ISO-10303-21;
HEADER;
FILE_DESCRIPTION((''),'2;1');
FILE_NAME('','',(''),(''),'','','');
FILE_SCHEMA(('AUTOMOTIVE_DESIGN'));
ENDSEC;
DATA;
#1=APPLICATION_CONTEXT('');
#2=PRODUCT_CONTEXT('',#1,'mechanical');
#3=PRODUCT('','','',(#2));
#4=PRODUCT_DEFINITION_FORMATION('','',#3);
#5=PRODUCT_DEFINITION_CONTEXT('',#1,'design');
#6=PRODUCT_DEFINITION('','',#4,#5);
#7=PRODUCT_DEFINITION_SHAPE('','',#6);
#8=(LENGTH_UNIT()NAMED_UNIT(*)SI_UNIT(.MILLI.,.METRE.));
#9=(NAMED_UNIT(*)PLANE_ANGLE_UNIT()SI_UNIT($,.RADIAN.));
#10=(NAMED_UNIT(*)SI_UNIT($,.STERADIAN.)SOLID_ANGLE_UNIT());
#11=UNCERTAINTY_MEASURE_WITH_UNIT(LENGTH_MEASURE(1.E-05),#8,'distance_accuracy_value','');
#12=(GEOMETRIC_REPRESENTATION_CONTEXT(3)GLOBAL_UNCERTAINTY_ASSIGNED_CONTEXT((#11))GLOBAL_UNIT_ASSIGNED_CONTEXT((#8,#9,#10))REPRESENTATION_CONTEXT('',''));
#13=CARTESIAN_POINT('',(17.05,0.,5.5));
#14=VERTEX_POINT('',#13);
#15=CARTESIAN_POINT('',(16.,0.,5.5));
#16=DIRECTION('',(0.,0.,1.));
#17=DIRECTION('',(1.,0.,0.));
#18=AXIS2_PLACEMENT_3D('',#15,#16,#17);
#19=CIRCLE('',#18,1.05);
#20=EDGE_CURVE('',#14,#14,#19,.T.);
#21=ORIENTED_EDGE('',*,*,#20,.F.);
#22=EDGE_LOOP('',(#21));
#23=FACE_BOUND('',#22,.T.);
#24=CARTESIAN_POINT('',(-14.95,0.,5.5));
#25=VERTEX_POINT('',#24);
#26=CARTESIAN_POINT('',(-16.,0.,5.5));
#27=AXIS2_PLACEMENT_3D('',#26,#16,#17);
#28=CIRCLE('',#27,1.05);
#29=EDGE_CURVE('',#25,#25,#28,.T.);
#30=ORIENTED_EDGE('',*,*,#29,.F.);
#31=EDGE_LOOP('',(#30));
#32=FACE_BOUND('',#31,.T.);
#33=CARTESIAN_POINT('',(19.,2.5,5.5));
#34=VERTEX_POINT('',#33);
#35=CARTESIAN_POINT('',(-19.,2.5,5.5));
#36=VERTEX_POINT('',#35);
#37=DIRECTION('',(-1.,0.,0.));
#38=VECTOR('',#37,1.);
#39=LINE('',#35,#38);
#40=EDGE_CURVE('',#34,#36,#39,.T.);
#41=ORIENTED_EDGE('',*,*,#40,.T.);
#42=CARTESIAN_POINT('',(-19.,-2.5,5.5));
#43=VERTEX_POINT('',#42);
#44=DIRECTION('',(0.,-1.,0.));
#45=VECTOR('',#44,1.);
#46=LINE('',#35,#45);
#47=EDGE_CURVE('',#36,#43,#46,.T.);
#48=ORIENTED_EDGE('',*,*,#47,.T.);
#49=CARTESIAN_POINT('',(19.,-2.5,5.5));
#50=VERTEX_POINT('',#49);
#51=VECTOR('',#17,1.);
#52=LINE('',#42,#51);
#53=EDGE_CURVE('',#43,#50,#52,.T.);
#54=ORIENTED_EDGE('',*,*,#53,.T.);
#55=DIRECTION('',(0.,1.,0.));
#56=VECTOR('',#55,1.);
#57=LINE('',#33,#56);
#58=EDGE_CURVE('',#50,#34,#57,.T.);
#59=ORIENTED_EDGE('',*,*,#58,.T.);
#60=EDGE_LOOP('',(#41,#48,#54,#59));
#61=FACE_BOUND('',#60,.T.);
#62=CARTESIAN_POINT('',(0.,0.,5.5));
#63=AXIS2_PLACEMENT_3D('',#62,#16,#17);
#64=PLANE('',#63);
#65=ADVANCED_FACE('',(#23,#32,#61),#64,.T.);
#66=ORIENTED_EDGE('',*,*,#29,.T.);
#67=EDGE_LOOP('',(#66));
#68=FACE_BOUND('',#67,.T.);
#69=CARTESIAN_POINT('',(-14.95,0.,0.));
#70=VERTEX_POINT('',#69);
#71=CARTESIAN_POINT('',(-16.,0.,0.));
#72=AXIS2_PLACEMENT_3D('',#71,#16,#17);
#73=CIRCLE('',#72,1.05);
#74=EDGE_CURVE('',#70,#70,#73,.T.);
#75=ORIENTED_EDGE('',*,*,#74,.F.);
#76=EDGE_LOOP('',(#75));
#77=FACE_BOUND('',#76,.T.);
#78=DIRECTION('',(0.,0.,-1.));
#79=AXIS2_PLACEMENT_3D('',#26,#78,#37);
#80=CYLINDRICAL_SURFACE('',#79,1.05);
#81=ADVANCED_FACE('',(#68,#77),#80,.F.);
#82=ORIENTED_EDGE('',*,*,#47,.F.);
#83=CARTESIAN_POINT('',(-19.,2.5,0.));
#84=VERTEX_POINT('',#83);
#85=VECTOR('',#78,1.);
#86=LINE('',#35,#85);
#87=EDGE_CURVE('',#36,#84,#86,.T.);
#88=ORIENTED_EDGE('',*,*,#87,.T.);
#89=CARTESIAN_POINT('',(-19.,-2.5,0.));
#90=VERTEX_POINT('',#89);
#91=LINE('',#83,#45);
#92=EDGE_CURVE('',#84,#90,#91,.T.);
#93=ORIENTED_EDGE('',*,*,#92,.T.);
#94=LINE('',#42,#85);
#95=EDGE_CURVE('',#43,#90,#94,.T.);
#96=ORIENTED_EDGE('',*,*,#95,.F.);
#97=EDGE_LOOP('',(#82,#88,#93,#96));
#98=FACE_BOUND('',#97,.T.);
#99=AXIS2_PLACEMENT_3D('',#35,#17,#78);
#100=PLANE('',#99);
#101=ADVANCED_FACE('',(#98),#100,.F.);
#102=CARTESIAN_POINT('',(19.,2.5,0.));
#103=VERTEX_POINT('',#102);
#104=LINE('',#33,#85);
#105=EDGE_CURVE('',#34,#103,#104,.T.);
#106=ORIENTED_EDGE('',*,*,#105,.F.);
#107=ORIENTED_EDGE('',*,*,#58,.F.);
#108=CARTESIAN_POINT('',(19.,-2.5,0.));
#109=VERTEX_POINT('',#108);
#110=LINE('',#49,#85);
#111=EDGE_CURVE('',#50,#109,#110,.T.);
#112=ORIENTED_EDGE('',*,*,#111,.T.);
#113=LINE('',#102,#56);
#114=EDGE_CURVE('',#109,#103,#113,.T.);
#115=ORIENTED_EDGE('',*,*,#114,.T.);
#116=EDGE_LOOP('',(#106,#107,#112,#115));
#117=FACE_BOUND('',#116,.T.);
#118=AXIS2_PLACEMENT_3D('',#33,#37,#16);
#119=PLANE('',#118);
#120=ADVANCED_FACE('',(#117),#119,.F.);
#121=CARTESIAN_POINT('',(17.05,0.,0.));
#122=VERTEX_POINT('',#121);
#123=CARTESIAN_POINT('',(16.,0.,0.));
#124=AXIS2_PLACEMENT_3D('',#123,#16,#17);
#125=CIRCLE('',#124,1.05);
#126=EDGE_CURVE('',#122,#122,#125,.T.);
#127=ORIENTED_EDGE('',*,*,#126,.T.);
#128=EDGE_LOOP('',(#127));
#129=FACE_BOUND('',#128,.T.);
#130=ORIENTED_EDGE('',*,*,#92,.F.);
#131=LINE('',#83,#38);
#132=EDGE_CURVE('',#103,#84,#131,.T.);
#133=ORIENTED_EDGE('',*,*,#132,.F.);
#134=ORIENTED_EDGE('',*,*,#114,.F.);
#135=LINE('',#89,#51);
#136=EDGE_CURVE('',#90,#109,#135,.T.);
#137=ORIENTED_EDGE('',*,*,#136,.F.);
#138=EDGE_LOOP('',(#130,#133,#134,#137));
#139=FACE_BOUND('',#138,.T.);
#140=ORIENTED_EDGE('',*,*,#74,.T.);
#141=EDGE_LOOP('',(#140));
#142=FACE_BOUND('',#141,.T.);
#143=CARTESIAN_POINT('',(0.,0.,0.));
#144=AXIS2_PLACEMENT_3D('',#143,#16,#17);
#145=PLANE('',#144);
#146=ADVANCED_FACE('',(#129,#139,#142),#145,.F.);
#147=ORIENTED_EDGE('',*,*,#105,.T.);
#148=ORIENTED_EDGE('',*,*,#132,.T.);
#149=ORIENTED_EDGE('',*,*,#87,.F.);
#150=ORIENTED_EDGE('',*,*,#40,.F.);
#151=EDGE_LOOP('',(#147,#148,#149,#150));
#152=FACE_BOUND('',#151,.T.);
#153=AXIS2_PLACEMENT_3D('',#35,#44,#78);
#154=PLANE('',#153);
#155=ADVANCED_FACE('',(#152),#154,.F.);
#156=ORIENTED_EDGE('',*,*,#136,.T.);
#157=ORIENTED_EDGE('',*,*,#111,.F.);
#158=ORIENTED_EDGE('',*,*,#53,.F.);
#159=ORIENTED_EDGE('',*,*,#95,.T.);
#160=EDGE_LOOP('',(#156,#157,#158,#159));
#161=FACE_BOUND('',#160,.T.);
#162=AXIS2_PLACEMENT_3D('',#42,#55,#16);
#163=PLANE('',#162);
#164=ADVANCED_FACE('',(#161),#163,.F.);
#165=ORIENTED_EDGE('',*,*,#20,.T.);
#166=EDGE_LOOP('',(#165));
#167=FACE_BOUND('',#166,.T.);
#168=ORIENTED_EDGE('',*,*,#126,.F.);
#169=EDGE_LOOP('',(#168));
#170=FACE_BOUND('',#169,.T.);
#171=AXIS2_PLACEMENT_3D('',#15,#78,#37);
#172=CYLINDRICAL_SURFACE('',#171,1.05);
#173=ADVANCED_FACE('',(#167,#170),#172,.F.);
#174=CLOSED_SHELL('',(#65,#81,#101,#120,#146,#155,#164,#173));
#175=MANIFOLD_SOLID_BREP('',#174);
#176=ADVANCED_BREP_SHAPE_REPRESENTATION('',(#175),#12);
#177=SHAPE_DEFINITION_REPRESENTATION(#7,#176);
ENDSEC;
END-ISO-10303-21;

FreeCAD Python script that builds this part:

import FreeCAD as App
import Part
import Sketcher
from FreeCAD import Vector
Q = App.Units.Quantity

doc = App.newDocument("Part")
body = doc.addObject("PartDesign::Body", "Body")

# Sketch on XY plane
sketch1 = body.newObject("Sketcher::SketchObject", "Sketch")
sketch1.AttachmentSupport = (doc.getObject("XY_Plane"), [""])
sketch1.MapMode = "FlatFace"
sketch1.addGeometry([
    Part.LineSegment(Vector(-19, 2.5, 0), Vector(-19, -2.5, 0)),  # 0
    Part.LineSegment(Vector(-19, -2.5, 0), Vector(19, -2.5, 0)),  # 1
    Part.LineSegment(Vector(19, -2.5, 0), Vector(19, 2.5, 0)),  # 2
    Part.LineSegment(Vector(19, 2.5, 0), Vector(-19, 2.5, 0)),  # 3
    Part.Circle(Vector(-16, 0, 0), Vector(0, 0, 1), 1.05),  # 4
    Part.Circle(Vector(16, 0, 0), Vector(0, 0, 1), 1.05),  # 5
], False)
sketch1.addConstraint([
    Sketcher.Constraint("Coincident", 0, 2, 1, 1),
    Sketcher.Constraint("Coincident", 1, 2, 2, 1),
    Sketcher.Constraint("Coincident", 2, 2, 3, 1),
    Sketcher.Constraint("Coincident", 3, 2, 0, 1),
    Sketcher.Constraint("Vertical", 0),
    Sketcher.Constraint("Horizontal", 1),
    Sketcher.Constraint("Vertical", 2),
    Sketcher.Constraint("Horizontal", 3),
    Sketcher.Constraint("Equal", 4, 5),
    Sketcher.Constraint("Symmetric", 4, 3, 5, 3, -1, 1),
    Sketcher.Constraint("Symmetric", 0, 2, 2, 2, -1, 1),
    Sketcher.Constraint("PointOnObject", 4, 3, -1),
    Sketcher.Constraint("Diameter", 4, Q("2.1 mm")),
    Sketcher.Constraint("DistanceX", 1, 1, 1, 2, Q("38 mm")),
    Sketcher.Constraint("DistanceY", 0, 2, 0, 1, Q("5 mm")),
    Sketcher.Constraint("DistanceX", 4, 3, -1, 1, Q("16 mm")),
])
pad1 = body.newObject("PartDesign::Pad", "Pad")
pad1.Profile = sketch1
pad1.Length = 5.5

doc.recompute()
